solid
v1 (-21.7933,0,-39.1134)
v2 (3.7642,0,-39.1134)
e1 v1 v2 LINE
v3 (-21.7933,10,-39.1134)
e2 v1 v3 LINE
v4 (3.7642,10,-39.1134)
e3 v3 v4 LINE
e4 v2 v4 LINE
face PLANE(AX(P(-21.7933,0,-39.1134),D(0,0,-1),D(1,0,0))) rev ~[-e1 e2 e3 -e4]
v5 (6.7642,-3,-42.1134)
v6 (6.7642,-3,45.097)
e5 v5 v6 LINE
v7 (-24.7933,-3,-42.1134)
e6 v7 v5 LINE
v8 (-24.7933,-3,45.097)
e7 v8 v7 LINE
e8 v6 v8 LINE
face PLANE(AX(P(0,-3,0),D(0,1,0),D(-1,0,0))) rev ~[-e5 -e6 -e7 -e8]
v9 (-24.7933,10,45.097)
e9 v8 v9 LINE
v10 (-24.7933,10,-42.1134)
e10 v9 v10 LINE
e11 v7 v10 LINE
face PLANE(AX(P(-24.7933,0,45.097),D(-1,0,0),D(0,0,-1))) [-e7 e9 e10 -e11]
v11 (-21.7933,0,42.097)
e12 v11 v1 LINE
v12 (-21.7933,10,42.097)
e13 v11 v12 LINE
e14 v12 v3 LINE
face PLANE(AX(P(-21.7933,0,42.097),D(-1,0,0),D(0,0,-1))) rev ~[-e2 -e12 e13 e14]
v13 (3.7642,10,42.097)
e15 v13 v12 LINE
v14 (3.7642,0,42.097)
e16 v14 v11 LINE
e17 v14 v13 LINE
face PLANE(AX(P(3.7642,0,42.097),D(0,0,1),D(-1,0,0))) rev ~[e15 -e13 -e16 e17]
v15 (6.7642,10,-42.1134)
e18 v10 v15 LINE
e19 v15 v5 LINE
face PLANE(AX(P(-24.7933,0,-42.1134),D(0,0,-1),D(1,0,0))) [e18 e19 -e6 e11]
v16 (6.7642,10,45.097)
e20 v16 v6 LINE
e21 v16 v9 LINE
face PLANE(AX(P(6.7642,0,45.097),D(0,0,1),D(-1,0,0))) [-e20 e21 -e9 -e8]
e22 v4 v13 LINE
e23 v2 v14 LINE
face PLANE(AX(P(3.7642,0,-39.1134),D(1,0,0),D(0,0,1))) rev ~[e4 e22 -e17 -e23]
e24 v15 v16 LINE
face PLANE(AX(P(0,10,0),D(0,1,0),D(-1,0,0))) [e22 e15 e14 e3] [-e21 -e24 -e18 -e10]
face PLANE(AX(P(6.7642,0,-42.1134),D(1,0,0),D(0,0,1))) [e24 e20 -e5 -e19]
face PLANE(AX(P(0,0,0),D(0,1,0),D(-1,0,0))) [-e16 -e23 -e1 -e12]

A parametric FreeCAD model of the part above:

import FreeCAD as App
import Part
import Sketcher

V = App.Vector

doc = App.newDocument("Part")
body = doc.addObject("PartDesign::Body", "Body")

sketch1 = body.newObject("Sketcher::SketchObject", "Sketch")
sketch1.AttachmentSupport = (doc.getObject("XZ_Plane"), [""])
sketch1.MapMode = "FlatFace"
sketch1.addGeometry([
    Part.LineSegment(V(6.7642, -42.1134, 0), V(-24.7933, -42.1134, 0)),
    Part.LineSegment(V(-24.7933, -42.1134, 0), V(-24.7933, 45.097, 0)),
    Part.LineSegment(V(-24.7933, 45.097, 0), V(6.7642, 45.097, 0)),
    Part.LineSegment(V(6.7642, 45.097, 0), V(6.7642, -42.1134, 0)),
], False)
sketch1.addConstraint([
    Sketcher.Constraint("Coincident", 0, 2, 1, 1),
    Sketcher.Constraint("Coincident", 1, 2, 2, 1),
    Sketcher.Constraint("Coincident", 2, 2, 3, 1),
    Sketcher.Constraint("Coincident", 3, 2, 0, 1),
    Sketcher.Constraint("Horizontal", 0),
    Sketcher.Constraint("Vertical", 1),
    Sketcher.Constraint("Horizontal", 2),
    Sketcher.Constraint("Vertical", 3),
    Sketcher.Constraint("DistanceX", 0, 2, 0, 1, 31.5575),
    Sketcher.Constraint("DistanceY", 1, 1, 1, 2, 87.2104),
    Sketcher.Constraint("DistanceY", -1, 1, 1, 2, 45.097),
    Sketcher.Constraint("DistanceX", 0, 2, -1, 1, 24.7933),
])
pad1 = body.newObject("PartDesign::Pad", "Pad")
pad1.Profile = sketch1
pad1.Length = 3

sketch2 = body.newObject("Sketcher::SketchObject", "Sketch001")
sketch2.AttachmentSupport = (doc.getObject("XZ_Plane"), [""])
sketch2.MapMode = "FlatFace"
sketch2.addGeometry([
    Part.LineSegment(V(6.7642, -42.1134, 0), V(-24.7933, -42.1134, 0)),
    Part.LineSegment(V(-24.7933, -42.1134, 0), V(-24.7933, 45.097, 0)),
    Part.LineSegment(V(-24.7933, 45.097, 0), V(6.7642, 45.097, 0)),
    Part.LineSegment(V(6.7642, 45.097, 0), V(6.7642, -42.1134, 0)),
    Part.LineSegment(V(-21.7933, 42.097, 0), V(-21.7933, -39.1134, 0)),
    Part.LineSegment(V(-21.7933, -39.1134, 0), V(3.7642, -39.1134, 0)),
    Part.LineSegment(V(3.7642, -39.1134, 0), V(3.7642, 42.097, 0)),
    Part.LineSegment(V(3.7642, 42.097, 0), V(-21.7933, 42.097, 0)),
], False)
sketch2.addConstraint([
    Sketcher.Constraint("Coincident", 0, 2, 1, 1),
    Sketcher.Constraint("Coincident", 1, 2, 2, 1),
    Sketcher.Constraint("Coincident", 2, 2, 3, 1),
    Sketcher.Constraint("Coincident", 3, 2, 0, 1),
    Sketcher.Constraint("Coincident", 4, 2, 5, 1),
    Sketcher.Constraint("Coincident", 5, 2, 6, 1),
    Sketcher.Constraint("Coincident", 6, 2, 7, 1),
    Sketcher.Constraint("Coincident", 7, 2, 4, 1),
    Sketcher.Constraint("Horizontal", 0),
    Sketcher.Constraint("Vertical", 1),
    Sketcher.Constraint("Horizontal", 2),
    Sketcher.Constraint("Vertical", 3),
    Sketcher.Constraint("Vertical", 4),
    Sketcher.Constraint("Horizontal", 5),
    Sketcher.Constraint("Vertical", 6),
    Sketcher.Constraint("Horizontal", 7),
    Sketcher.Constraint("DistanceX", 0, 2, 4, 2, 3.0),
    Sketcher.Constraint("DistanceY", 0, 2, 4, 2, 3.0),
    Sketcher.Constraint("DistanceX", 5, 2, 3, 2, 3.0),
    Sketcher.Constraint("DistanceY", 6, 2, 2, 2, 3.0),
    Sketcher.Constraint("DistanceX", 0, 2, 0, 1, 31.5575),
    Sketcher.Constraint("DistanceY", 1, 1, 1, 2, 87.2104),
    Sketcher.Constraint("DistanceY", -1, 1, 1, 2, 45.097),
    Sketcher.Constraint("DistanceX", 0, 2, -1, 1, 24.7933),
])
pad2 = body.newObject("PartDesign::Pad", "Pad001")
pad2.Profile = sketch2
pad2.Length = 10
pad2.Reversed = True

doc.recompute()
